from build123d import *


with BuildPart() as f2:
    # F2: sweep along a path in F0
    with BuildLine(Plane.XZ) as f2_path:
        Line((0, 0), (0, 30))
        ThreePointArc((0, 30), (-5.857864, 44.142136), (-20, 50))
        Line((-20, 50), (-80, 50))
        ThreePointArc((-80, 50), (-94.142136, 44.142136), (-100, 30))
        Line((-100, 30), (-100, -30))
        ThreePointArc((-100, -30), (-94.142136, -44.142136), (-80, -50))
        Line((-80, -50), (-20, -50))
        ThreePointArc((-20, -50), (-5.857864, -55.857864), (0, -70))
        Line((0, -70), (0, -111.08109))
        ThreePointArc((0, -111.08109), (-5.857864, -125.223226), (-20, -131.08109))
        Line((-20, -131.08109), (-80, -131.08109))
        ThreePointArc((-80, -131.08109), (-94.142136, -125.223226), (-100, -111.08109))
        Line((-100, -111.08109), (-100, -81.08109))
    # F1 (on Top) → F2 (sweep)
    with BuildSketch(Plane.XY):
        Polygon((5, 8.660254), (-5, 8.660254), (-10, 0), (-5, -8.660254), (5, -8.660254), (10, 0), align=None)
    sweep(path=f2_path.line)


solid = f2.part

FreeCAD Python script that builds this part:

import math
import FreeCAD as App
import Part
import Sketcher

V = App.Vector
Q = App.Units.Quantity


def add_polygon(sketch, points):
    """Adds a closed chain of lines whose ends are joined by coincident constraints."""
    first, n = sketch.GeometryCount, len(points)
    for a, b in zip(points, points[1:] + points[:1]):
        sketch.addGeometry(Part.LineSegment(App.Vector(*a, 0), App.Vector(*b, 0)), False)
    for i in range(n):
        sketch.addConstraint(Sketcher.Constraint("Coincident", first + i, 2, first + (i + 1) % n, 1))

doc = App.newDocument("Part")
body = doc.addObject("PartDesign::Body", "Body")

sketch1 = body.newObject("Sketcher::SketchObject", "Sketch")
sketch1.AttachmentSupport = (doc.getObject("XY_Plane"), [""])
sketch1.MapMode = "FlatFace"
add_polygon(sketch1, [(5, 9), (-5, 9), (-10, 0), (-5, -9), (5, -9), (10, 0)])
sketch1.addConstraint([
    Sketcher.Constraint("Horizontal", 0),
    Sketcher.Constraint("Horizontal", 3),
    Sketcher.Constraint("Symmetric", 0, 2, 3, 2, -1, 1),
    Sketcher.Constraint("Symmetric", 1, 2, 4, 2, -1, 1),
    Sketcher.Constraint("PointOnObject", 1, 2, -1),
    Sketcher.Constraint("Parallel", 2, 5),
    Sketcher.Constraint("Vertical", 0, 2, 2, 2),
    Sketcher.Constraint("DistanceX", 0, 2, 0, 1, 10.0),
    Sketcher.Constraint("Angle", 1, Q("-120 deg")),
    Sketcher.Constraint("Distance", 1, 10.0),
])

sketch2 = body.newObject("Sketcher::SketchObject", "Sketch001")
sketch2.AttachmentSupport = (doc.getObject("XZ_Plane"), [""])
sketch2.MapMode = "FlatFace"
sketch2.addGeometry([
    Part.LineSegment(V(0, 0, 0), V(0, 30, 0)),
    Part.ArcOfCircle(Part.Circle(V(-20, 30, 0), V(0, 0, 1), 20), math.radians(0), math.radians(90)),
    Part.LineSegment(V(-20, 50, 0), V(-80, 50, 0)),
    Part.ArcOfCircle(Part.Circle(V(-80, 30, 0), V(0, 0, 1), 20), math.radians(90), math.radians(180)),
    Part.LineSegment(V(-100, 30, 0), V(-100, -30, 0)),
    Part.ArcOfCircle(Part.Circle(V(-80, -30, 0), V(0, 0, 1), 20), math.radians(180), math.radians(270)),
    Part.LineSegment(V(-80, -50, 0), V(-20, -50, 0)),
    Part.ArcOfCircle(Part.Circle(V(-20, -70, 0), V(0, 0, 1), 20), math.radians(0), math.radians(90)),
    Part.LineSegment(V(0, -70, 0), V(0, -111, 0)),
    Part.ArcOfCircle(Part.Circle(V(-20, -111, 0), V(0, 0, 1), 20), math.radians(-90), math.radians(0)),
    Part.LineSegment(V(-20, -131, 0), V(-80, -131, 0)),
    Part.ArcOfCircle(Part.Circle(V(-80, -111, 0), V(0, 0, 1), 20), math.radians(180), math.radians(270)),
    Part.LineSegment(V(-100, -111, 0), V(-100, -81, 0)),
], False)
sketch2.addConstraint([
    Sketcher.Constraint("Tangent", 0, 2, 1, 1),
    Sketcher.Constraint("Tangent", 1, 2, 2, 1),
    Sketcher.Constraint("Tangent", 2, 2, 3, 1),
    Sketcher.Constraint("Tangent", 3, 2, 4, 1),
    Sketcher.Constraint("Tangent", 4, 2, 5, 1),
    Sketcher.Constraint("Tangent", 5, 2, 6, 1),
    Sketcher.Constraint("Tangent", 6, 2, 7, 2),
    Sketcher.Constraint("Tangent", 7, 1, 8, 1),
    Sketcher.Constraint("Tangent", 8, 2, 9, 2),
    Sketcher.Constraint("Tangent", 9, 1, 10, 1),
    Sketcher.Constraint("Tangent", 10, 2, 11, 2),
    Sketcher.Constraint("Tangent", 11, 1, 12, 1),
    Sketcher.Constraint("Vertical", 0),
    Sketcher.Constraint("Horizontal", 2),
    Sketcher.Constraint("Vertical", 4),
    Sketcher.Constraint("Horizontal", 6),
    Sketcher.Constraint("Vertical", 8),
    Sketcher.Constraint("Horizontal", 10),
    Sketcher.Constraint("Vertical", 12),
    Sketcher.Constraint("Coincident", 0, 1, -1, 1),
    Sketcher.Constraint("Equal", 1, 3),
    Sketcher.Constraint("Equal", 3, 5),
    Sketcher.Constraint("Equal", 5, 7),
    Sketcher.Constraint("Equal", 7, 9),
    Sketcher.Constraint("Equal", 9, 11),
    Sketcher.Constraint("Symmetric", 1, 2, 6, 2, -1),
    Sketcher.Constraint("Vertical", 5, 3, 11, 3),
    Sketcher.Constraint("Equal", 10, 4),
    Sketcher.Constraint("Equal", 0, 12),
    Sketcher.Constraint("Radius", 1, 19.999999),
    Sketcher.Constraint("DistanceX", 2, 2, 2, 1, 60.0),
    Sketcher.Constraint("DistanceY", 8, 2, 8, 1, 41.08109),
])
doc.recompute()

additivepipe = body.newObject("PartDesign::AdditivePipe", "AdditivePipe")
additivepipe.Profile = sketch1
additivepipe.Spine = (sketch2, ["Edge1", "Edge2", "Edge3", "Edge4", "Edge5", "Edge6", "Edge7", "Edge8", "Edge9", "Edge10", "Edge11", "Edge12", "Edge13"])

doc.recompute()
